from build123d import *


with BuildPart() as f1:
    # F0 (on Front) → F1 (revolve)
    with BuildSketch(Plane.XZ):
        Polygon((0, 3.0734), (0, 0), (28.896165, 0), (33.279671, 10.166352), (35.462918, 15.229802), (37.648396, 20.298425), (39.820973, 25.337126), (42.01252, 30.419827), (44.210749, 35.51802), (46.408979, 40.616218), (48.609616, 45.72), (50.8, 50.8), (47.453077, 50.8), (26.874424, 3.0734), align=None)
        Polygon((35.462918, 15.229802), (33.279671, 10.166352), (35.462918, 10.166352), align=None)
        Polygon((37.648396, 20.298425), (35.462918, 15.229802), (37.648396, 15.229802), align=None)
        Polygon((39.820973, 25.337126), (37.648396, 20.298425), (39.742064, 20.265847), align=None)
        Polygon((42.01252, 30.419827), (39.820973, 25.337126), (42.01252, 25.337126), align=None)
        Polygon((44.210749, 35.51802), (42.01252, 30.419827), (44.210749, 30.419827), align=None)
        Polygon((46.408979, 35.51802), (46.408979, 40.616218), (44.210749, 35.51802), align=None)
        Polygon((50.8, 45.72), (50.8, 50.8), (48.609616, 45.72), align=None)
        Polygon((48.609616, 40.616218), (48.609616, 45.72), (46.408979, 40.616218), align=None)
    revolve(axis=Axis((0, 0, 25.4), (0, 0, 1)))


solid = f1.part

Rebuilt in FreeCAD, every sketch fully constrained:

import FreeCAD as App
import Part
import Sketcher

V = App.Vector
Q = App.Units.Quantity

doc = App.newDocument("Part")
body = doc.addObject("PartDesign::Body", "Body")

sketch1 = body.newObject("Sketcher::SketchObject", "Sketch")
sketch1.AttachmentSupport = (doc.getObject("XZ_Plane"), [""])
sketch1.MapMode = "FlatFace"
sketch1.addGeometry([
    Part.LineSegment(V(0, 3.1, 0), V(0, 0, 0)),
    Part.LineSegment(V(0, 0, 0), V(28.9, 0, 0)),
    Part.LineSegment(V(28.9, 0, 0), V(33.3, 10.2, 0)),
    Part.LineSegment(V(33.3, 10.2, 0), V(35.5, 10.2, 0)),
    Part.LineSegment(V(35.5, 10.2, 0), V(35.5, 15.2, 0)),
    Part.LineSegment(V(35.5, 15.2, 0), V(37.6, 15.2, 0)),
    Part.LineSegment(V(37.6, 15.2, 0), V(37.6, 20.3, 0)),
    Part.LineSegment(V(37.6, 20.3, 0), V(39.7, 20.3, 0)),
    Part.LineSegment(V(39.7, 20.3, 0), V(39.8, 25.3, 0)),
    Part.LineSegment(V(39.8, 25.3, 0), V(42, 25.3, 0)),
    Part.LineSegment(V(42, 25.3, 0), V(42, 30.4, 0)),
    Part.LineSegment(V(42, 30.4, 0), V(44.2, 30.4, 0)),
    Part.LineSegment(V(44.2, 30.4, 0), V(44.2, 35.5, 0)),
    Part.LineSegment(V(44.2, 35.5, 0), V(46.4, 35.5, 0)),
    Part.LineSegment(V(46.4, 35.5, 0), V(46.4, 40.6, 0)),
    Part.LineSegment(V(46.4, 40.6, 0), V(48.6, 40.6, 0)),
    Part.LineSegment(V(48.6, 40.6, 0), V(48.6, 45.7, 0)),
    Part.LineSegment(V(48.6, 45.7, 0), V(50.8, 45.7, 0)),
    Part.LineSegment(V(50.8, 45.7, 0), V(50.8, 50.8, 0)),
    Part.LineSegment(V(50.8, 50.8, 0), V(47.5, 50.8, 0)),
    Part.LineSegment(V(47.5, 50.8, 0), V(26.9, 3.1, 0)),
    Part.LineSegment(V(26.9, 3.1, 0), V(0, 3.1, 0)),
], False)
sketch1.addConstraint([
    Sketcher.Constraint("Coincident", 0, 2, 1, 1),
    Sketcher.Constraint("Coincident", 1, 2, 2, 1),
    Sketcher.Constraint("Coincident", 2, 2, 3, 1),
    Sketcher.Constraint("Coincident", 3, 2, 4, 1),
    Sketcher.Constraint("Coincident", 4, 2, 5, 1),
    Sketcher.Constraint("Coincident", 5, 2, 6, 1),
    Sketcher.Constraint("Coincident", 6, 2, 7, 1),
    Sketcher.Constraint("Coincident", 7, 2, 8, 1),
    Sketcher.Constraint("Coincident", 8, 2, 9, 1),
    Sketcher.Constraint("Coincident", 9, 2, 10, 1),
    Sketcher.Constraint("Coincident", 10, 2, 11, 1),
    Sketcher.Constraint("Coincident", 11, 2, 12, 1),
    Sketcher.Constraint("Coincident", 12, 2, 13, 1),
    Sketcher.Constraint("Coincident", 13, 2, 14, 1),
    Sketcher.Constraint("Coincident", 14, 2, 15, 1),
    Sketcher.Constraint("Coincident", 15, 2, 16, 1),
    Sketcher.Constraint("Coincident", 16, 2, 17, 1),
    Sketcher.Constraint("Coincident", 17, 2, 18, 1),
    Sketcher.Constraint("Coincident", 18, 2, 19, 1),
    Sketcher.Constraint("Coincident", 19, 2, 20, 1),
    Sketcher.Constraint("Coincident", 20, 2, 21, 1),
    Sketcher.Constraint("Coincident", 21, 2, 0, 1),
    Sketcher.Constraint("Vertical", 0),
    Sketcher.Constraint("Horizontal", 1),
    Sketcher.Constraint("Horizontal", 3),
    Sketcher.Constraint("Vertical", 4),
    Sketcher.Constraint("Horizontal", 5),
    Sketcher.Constraint("Vertical", 6),
    Sketcher.Constraint("Horizontal", 9),
    Sketcher.Constraint("Vertical", 10),
    Sketcher.Constraint("Horizontal", 11),
    Sketcher.Constraint("Vertical", 12),
    Sketcher.Constraint("Horizontal", 13),
    Sketcher.Constraint("Vertical", 14),
    Sketcher.Constraint("Horizontal", 15),
    Sketcher.Constraint("Vertical", 16),
    Sketcher.Constraint("Horizontal", 17),
    Sketcher.Constraint("Vertical", 18),
    Sketcher.Constraint("Horizontal", 19),
    Sketcher.Constraint("Horizontal", 21),
    Sketcher.Constraint("Coincident", 0, 2, -1, 1),
    Sketcher.Constraint("Perpendicular", 7, 8),
    Sketcher.Constraint("Parallel", 2, 20),
    Sketcher.Constraint("Equal", 11, 13),
    Sketcher.Constraint("DistanceY", 18, 1, 18, 2, Q("0.2 in")),
    Sketcher.Constraint("DistanceX", -1, 1, 17, 2, Q("2 in")),
    Sketcher.Constraint("DistanceY", -1, 1, 18, 2, Q("2 in")),
    Sketcher.Constraint("DistanceY", 0, 2, 0, 1, Q("0.121 in")),
    Sketcher.Constraint("DistanceY", 10, 1, 10, 2, 5.082701),
    Sketcher.Constraint("DistanceY", 14, 1, 14, 2, 5.098198),
    Sketcher.Constraint("DistanceX", 11, 1, 11, 2, 2.198229),
    Sketcher.Constraint("DistanceY", 4, 1, 4, 2, 5.06345),
    Sketcher.Constraint("DistanceY", 16, 1, 16, 2, 5.103782),
    Sketcher.Constraint("DistanceY", 6, 2, 8, 2, 5.038701),
    Sketcher.Constraint("Distance", 7, 2.093921),
    Sketcher.Constraint("Distance", 20, 51.974122),
    Sketcher.Constraint("DistanceX", 1, 1, 1, 2, 28.896165),
    Sketcher.Constraint("DistanceX", 3, 1, 3, 2, 2.183247),
    Sketcher.Constraint("DistanceX", 5, 1, 5, 2, 2.185478),
    Sketcher.Constraint("DistanceX", 9, 1, 9, 2, 2.191547),
    Sketcher.Constraint("DistanceX", 15, 1, 15, 2, 2.200637),
    Sketcher.Constraint("DistanceX", 17, 1, 17, 2, 2.190384),
    Sketcher.Constraint("DistanceX", 19, 2, 19, 1, 3.346923),
    Sketcher.Constraint("DistanceY", 6, 1, 6, 2, 5.068623),
    Sketcher.Constraint("DistanceY", 12, 1, 12, 2, 5.098193),
])
revolution = body.newObject("PartDesign::Revolution", "Revolution")
revolution.Profile = sketch1
revolution.ReferenceAxis = (sketch1, ["V_Axis"])
revolution.Angle = 360

doc.recompute()
